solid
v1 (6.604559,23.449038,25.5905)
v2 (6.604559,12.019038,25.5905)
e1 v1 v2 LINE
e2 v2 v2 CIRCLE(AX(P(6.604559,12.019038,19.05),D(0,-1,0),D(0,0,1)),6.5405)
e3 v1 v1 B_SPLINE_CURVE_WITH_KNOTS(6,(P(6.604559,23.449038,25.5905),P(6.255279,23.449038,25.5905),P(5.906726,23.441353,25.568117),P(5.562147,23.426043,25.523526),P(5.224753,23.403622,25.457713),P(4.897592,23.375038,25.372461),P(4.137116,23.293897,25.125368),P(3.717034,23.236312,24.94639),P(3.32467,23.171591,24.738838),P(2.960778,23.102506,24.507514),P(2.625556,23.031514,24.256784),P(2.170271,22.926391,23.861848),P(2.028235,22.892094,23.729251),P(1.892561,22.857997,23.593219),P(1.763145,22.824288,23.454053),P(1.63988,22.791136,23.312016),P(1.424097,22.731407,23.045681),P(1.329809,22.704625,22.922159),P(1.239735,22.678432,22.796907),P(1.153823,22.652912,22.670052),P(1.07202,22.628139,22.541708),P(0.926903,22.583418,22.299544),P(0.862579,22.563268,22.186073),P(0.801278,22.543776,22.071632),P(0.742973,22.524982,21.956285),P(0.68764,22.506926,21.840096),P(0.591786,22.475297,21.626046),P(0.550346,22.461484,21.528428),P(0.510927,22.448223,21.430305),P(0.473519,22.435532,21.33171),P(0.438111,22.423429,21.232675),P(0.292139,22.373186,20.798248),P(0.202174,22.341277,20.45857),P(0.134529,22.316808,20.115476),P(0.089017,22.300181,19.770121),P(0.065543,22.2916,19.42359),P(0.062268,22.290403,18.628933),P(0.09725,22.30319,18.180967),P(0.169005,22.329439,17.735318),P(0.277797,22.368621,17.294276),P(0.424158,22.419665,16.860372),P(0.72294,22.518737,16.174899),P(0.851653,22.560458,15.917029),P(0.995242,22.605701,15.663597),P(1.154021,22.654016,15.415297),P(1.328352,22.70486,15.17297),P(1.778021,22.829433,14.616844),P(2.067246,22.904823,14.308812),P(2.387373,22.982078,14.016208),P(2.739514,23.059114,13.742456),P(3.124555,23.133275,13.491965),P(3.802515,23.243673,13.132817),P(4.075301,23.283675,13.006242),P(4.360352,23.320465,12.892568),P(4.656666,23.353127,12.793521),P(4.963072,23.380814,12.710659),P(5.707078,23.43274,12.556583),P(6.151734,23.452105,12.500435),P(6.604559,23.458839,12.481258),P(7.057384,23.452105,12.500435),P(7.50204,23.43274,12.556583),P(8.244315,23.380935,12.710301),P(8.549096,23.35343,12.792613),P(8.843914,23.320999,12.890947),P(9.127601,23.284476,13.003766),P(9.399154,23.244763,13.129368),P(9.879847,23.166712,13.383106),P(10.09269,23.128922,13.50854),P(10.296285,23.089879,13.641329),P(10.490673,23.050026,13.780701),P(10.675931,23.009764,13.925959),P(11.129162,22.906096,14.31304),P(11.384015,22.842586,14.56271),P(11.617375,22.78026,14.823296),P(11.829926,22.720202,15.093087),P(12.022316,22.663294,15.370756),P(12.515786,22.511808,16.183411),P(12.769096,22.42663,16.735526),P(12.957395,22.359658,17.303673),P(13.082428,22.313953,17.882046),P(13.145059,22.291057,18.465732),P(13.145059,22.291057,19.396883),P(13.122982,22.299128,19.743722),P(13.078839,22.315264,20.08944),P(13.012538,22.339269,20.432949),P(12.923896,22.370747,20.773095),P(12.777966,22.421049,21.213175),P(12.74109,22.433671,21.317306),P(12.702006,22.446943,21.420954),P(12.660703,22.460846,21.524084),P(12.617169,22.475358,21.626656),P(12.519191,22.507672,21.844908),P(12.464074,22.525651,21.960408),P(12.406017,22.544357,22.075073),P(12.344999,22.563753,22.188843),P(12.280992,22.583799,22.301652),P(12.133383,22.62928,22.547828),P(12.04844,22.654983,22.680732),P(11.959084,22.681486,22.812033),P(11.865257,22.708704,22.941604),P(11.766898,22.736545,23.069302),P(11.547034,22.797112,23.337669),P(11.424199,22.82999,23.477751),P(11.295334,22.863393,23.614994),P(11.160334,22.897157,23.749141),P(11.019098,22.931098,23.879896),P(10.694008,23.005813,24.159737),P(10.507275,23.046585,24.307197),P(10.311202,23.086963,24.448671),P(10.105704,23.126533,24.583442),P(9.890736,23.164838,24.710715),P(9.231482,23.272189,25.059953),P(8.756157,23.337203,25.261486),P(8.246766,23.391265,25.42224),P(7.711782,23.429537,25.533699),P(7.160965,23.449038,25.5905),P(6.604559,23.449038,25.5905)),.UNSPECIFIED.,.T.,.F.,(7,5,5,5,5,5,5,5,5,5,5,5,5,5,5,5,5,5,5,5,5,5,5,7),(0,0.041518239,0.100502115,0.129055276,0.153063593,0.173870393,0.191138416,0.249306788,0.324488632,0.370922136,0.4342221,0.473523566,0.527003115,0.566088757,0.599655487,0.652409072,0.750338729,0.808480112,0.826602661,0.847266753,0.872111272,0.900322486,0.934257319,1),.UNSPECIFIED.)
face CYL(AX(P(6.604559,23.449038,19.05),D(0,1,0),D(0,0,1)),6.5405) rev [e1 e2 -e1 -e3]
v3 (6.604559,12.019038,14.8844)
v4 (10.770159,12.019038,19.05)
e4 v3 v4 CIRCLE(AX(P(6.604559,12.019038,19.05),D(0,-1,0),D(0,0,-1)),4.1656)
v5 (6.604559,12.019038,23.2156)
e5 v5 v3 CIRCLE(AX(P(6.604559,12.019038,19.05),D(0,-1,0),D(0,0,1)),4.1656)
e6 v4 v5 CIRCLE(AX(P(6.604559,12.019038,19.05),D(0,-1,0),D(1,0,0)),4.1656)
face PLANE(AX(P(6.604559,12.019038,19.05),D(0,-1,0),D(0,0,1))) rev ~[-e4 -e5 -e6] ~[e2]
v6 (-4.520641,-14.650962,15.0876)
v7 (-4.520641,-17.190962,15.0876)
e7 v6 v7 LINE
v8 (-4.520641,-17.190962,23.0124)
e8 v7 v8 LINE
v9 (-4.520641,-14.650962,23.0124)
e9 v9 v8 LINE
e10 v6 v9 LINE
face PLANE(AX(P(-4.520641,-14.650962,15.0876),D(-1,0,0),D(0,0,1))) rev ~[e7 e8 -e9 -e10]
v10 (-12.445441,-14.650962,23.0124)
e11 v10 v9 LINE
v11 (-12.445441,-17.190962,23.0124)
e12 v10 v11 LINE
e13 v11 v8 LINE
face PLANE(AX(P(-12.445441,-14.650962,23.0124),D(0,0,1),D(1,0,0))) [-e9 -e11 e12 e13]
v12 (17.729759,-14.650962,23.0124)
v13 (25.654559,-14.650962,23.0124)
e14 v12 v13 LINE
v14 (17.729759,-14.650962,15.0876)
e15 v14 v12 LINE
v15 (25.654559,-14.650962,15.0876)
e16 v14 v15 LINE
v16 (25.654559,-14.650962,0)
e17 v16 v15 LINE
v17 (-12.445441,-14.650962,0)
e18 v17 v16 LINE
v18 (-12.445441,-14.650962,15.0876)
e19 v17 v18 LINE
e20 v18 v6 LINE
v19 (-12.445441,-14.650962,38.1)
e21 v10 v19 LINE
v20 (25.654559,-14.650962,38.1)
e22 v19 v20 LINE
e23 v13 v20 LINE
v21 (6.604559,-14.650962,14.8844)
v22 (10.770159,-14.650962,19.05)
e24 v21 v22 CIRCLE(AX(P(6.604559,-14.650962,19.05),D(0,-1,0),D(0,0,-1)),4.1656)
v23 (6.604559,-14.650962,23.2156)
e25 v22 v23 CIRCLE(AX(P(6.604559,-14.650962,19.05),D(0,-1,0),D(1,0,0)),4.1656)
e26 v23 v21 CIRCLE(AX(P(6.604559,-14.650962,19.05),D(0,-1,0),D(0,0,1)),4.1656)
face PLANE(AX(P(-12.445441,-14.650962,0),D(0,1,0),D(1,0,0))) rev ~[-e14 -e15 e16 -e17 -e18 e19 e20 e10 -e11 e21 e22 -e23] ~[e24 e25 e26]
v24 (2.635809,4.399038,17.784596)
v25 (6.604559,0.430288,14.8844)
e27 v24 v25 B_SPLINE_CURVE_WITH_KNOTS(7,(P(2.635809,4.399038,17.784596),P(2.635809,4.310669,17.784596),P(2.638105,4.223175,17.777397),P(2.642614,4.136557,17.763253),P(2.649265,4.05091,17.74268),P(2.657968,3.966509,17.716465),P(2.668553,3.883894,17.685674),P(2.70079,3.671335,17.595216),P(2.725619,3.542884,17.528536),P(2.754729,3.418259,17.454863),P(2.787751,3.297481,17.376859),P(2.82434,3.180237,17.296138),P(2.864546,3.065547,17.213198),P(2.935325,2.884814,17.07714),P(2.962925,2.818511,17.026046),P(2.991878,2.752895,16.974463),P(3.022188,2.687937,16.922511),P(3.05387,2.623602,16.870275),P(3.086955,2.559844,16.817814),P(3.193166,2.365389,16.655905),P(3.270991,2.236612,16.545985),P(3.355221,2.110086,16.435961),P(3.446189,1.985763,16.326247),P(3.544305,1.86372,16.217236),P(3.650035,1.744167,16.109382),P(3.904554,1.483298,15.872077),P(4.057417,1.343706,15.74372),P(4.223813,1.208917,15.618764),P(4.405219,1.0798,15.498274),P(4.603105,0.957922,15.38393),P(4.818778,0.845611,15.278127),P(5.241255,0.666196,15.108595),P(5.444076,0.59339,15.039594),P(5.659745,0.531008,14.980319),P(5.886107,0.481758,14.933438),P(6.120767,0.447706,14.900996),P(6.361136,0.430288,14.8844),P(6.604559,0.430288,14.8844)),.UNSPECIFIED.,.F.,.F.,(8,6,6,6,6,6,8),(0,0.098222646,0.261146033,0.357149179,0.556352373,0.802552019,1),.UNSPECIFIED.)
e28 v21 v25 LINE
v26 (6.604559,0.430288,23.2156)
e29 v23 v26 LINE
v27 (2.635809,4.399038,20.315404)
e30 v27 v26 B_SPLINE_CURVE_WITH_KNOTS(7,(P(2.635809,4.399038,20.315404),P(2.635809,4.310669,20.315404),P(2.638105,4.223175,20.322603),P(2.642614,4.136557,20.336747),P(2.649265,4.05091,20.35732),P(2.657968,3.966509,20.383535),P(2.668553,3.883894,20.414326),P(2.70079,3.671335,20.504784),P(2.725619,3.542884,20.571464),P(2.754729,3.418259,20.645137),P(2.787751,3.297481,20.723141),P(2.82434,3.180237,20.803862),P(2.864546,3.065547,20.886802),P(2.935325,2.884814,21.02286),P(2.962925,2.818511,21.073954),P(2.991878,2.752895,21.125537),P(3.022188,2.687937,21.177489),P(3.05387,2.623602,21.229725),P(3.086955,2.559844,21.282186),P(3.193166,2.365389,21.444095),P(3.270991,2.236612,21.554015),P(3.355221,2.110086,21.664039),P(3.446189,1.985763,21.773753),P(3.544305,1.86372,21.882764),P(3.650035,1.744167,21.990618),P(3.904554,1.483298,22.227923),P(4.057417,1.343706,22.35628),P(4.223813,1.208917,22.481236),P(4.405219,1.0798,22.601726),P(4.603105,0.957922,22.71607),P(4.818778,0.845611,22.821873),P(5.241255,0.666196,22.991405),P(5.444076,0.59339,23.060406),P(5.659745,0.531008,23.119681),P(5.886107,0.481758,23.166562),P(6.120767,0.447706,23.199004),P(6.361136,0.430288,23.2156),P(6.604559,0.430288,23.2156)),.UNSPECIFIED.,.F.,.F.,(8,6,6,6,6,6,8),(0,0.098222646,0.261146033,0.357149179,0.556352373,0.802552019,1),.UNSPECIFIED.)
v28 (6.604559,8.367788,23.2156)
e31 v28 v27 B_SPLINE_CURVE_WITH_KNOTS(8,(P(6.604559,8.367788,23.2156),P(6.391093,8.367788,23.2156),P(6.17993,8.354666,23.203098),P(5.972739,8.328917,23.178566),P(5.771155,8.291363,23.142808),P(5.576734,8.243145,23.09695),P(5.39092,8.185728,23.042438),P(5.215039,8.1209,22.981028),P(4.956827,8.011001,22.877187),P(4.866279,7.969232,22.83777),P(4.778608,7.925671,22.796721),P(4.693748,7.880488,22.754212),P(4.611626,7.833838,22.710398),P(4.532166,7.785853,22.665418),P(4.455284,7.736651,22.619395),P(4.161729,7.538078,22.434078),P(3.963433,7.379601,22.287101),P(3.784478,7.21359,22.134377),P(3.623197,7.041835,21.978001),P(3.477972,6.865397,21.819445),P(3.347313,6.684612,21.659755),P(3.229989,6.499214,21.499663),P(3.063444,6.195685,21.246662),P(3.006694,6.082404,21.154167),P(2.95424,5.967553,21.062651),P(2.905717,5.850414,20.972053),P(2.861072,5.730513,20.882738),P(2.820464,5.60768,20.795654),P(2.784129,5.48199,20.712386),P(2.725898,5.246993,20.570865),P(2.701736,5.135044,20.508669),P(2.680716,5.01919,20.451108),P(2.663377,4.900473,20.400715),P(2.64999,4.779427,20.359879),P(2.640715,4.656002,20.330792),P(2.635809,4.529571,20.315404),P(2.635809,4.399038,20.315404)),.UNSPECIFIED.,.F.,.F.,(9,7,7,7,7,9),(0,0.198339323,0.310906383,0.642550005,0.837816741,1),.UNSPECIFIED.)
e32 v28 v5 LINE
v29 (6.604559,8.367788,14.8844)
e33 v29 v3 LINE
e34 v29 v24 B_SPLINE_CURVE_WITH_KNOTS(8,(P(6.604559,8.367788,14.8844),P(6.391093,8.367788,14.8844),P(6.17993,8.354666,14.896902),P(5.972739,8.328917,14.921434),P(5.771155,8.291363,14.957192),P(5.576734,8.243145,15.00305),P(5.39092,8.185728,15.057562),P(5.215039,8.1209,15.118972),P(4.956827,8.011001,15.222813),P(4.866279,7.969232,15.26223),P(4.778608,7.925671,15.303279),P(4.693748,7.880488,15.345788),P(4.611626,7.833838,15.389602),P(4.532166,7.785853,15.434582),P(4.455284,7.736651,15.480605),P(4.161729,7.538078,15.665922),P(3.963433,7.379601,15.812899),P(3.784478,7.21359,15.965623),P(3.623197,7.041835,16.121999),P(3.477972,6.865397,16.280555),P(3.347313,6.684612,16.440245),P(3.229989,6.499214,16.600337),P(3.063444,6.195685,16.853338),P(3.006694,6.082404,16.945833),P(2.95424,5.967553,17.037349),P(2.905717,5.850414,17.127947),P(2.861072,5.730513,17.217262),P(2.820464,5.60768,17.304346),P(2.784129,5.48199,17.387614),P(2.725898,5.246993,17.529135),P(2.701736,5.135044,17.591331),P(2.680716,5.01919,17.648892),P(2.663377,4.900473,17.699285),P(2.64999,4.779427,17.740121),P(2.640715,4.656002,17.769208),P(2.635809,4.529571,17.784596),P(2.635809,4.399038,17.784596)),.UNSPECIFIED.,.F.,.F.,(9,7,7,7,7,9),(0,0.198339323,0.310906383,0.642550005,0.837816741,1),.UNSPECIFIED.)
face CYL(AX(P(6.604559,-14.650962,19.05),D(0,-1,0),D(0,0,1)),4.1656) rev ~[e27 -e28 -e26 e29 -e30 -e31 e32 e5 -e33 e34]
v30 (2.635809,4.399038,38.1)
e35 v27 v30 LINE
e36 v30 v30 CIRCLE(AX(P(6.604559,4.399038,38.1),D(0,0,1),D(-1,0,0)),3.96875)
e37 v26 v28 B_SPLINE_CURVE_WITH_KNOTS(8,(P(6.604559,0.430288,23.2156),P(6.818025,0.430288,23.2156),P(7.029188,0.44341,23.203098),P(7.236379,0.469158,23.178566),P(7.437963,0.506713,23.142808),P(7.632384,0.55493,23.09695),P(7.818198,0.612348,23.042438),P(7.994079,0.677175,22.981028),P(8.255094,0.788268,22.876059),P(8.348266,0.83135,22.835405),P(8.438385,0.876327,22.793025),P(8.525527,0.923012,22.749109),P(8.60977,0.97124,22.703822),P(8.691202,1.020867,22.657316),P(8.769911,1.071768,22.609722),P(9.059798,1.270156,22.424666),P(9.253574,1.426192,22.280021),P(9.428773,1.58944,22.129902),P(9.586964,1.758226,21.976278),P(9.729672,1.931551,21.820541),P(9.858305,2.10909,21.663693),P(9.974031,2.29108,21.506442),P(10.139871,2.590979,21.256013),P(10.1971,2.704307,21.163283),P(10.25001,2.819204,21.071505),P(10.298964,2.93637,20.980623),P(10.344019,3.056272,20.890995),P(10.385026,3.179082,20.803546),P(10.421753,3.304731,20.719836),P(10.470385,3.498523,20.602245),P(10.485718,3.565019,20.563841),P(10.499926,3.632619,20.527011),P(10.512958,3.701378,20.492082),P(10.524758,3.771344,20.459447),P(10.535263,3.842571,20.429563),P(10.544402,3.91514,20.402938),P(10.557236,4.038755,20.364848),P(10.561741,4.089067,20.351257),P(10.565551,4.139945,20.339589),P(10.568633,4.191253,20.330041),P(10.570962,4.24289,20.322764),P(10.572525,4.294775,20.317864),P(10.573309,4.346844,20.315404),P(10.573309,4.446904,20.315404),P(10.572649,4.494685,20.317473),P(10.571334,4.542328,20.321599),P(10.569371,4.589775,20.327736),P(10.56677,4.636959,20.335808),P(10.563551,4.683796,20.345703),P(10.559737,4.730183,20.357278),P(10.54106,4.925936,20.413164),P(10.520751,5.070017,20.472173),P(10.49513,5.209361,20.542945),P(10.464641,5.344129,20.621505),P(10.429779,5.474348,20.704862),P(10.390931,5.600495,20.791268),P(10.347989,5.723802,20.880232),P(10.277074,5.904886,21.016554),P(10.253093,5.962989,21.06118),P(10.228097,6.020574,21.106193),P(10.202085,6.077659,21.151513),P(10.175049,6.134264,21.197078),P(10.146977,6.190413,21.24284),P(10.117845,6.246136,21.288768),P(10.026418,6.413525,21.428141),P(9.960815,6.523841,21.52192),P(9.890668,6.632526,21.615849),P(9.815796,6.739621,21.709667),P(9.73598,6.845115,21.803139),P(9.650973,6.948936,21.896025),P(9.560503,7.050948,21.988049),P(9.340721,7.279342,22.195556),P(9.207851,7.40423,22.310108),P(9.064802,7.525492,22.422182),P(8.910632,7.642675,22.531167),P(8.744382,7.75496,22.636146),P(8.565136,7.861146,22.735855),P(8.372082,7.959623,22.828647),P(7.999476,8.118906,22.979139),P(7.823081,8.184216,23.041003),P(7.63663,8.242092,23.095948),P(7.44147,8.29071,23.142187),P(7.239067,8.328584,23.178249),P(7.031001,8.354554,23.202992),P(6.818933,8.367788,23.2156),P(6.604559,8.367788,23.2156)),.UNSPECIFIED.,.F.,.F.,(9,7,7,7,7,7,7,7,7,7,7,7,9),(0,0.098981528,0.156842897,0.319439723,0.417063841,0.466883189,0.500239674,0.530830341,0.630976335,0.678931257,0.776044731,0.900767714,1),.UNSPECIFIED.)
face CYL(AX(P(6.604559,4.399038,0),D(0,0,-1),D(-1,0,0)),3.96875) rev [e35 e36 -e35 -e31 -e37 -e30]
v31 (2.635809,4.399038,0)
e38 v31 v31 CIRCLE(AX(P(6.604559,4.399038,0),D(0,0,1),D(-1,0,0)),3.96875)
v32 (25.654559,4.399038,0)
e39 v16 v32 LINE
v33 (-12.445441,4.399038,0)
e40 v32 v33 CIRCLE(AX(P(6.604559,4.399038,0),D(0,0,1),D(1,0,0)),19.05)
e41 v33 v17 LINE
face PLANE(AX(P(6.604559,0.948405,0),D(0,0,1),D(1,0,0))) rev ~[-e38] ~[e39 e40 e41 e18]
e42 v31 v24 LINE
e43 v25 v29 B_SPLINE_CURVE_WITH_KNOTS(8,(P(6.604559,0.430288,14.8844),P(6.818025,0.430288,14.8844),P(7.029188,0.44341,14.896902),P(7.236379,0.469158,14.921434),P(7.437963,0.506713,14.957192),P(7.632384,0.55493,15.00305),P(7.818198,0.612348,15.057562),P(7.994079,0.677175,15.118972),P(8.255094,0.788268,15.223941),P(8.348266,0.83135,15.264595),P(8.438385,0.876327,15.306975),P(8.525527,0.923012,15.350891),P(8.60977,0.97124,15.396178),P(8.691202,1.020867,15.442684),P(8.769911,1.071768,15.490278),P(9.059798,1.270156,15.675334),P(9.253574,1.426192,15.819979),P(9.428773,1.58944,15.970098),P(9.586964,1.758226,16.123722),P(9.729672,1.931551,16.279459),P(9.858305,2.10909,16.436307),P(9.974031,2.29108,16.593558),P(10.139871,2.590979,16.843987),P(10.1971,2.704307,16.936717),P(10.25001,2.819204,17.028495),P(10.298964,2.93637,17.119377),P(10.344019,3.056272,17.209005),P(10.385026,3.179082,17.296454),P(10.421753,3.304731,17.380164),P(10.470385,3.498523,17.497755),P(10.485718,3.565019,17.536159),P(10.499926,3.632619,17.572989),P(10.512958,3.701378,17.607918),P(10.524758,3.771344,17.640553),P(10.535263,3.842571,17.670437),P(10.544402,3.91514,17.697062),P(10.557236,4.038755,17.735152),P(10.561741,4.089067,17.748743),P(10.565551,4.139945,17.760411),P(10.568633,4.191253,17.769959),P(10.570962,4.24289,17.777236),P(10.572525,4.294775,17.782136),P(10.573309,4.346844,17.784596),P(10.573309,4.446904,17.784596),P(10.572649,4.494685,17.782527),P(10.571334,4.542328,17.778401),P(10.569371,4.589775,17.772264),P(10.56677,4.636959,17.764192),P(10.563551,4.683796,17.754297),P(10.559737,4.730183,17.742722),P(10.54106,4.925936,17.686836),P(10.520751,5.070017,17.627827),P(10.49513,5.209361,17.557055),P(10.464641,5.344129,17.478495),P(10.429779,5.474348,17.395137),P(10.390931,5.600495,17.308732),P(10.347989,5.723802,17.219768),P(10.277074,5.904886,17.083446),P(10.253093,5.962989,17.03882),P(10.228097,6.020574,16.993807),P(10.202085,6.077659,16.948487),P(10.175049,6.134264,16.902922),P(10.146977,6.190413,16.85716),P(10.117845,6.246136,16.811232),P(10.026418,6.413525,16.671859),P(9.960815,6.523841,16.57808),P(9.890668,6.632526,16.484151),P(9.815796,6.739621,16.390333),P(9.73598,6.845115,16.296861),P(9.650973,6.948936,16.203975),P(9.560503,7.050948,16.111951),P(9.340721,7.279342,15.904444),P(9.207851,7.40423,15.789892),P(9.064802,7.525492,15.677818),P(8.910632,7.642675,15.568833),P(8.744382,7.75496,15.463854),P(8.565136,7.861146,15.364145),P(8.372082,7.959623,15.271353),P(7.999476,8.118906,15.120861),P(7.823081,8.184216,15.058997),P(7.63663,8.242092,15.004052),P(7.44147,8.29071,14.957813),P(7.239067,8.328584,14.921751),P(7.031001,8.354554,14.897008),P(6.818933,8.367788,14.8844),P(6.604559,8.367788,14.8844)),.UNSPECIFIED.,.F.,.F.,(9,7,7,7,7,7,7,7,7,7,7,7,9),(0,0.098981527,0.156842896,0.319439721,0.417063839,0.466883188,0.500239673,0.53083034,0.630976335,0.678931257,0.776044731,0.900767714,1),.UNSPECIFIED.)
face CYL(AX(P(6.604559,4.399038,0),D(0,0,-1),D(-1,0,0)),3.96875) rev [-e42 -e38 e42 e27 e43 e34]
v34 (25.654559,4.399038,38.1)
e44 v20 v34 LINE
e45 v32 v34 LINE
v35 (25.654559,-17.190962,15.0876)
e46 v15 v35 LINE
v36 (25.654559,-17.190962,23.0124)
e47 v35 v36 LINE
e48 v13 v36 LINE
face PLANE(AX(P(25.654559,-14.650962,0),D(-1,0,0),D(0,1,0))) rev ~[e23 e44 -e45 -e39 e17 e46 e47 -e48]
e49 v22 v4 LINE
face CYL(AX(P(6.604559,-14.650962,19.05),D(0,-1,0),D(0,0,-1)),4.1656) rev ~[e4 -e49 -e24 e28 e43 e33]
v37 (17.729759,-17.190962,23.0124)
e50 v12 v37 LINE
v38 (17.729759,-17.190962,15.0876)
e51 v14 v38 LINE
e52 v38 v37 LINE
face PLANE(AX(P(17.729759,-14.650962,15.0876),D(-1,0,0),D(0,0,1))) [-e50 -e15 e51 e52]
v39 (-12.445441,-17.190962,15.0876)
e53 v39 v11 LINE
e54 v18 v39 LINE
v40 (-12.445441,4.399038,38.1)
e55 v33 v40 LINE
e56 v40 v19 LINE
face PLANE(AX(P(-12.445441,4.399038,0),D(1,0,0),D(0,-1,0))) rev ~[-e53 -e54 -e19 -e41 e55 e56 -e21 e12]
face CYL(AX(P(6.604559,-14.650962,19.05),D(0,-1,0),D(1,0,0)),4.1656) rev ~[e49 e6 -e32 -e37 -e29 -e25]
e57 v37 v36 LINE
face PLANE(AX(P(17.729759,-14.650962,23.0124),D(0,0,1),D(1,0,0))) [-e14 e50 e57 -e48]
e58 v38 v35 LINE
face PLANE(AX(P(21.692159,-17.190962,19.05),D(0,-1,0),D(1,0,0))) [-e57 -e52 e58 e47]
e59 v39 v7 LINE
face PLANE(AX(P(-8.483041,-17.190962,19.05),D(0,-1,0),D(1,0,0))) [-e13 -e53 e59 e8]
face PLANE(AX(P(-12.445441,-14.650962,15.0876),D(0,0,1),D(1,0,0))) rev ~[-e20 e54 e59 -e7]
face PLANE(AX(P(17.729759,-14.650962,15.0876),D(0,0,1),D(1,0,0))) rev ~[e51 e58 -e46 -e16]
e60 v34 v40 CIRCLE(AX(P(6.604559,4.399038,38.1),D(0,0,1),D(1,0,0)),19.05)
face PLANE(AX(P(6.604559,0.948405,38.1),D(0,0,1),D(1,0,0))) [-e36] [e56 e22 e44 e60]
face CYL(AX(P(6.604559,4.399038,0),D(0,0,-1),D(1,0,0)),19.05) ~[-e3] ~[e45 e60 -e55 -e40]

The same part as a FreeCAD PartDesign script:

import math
import FreeCAD as App
import Part
import Sketcher

V = App.Vector
Q = App.Units.Quantity


def add_polygon(sketch, points):
    """Adds a closed chain of lines whose ends are joined by coincident constraints."""
    first, n = sketch.GeometryCount, len(points)
    for a, b in zip(points, points[1:] + points[:1]):
        sketch.addGeometry(Part.LineSegment(App.Vector(*a, 0), App.Vector(*b, 0)), False)
    for i in range(n):
        sketch.addConstraint(Sketcher.Constraint("Coincident", first + i, 2, first + (i + 1) % n, 1))

doc = App.newDocument("Part")
body = doc.addObject("PartDesign::Body", "Body")

sketch1 = body.newObject("Sketcher::SketchObject", "Sketch")
sketch1.AttachmentSupport = (doc.getObject("XY_Plane"), [""])
sketch1.MapMode = "FlatFace"
sketch1.addGeometry([
    Part.LineSegment(V(-12.445441, 4.399038, 0), V(-12.445441, -14.650962, 0)),
    Part.LineSegment(V(-12.445441, -14.650962, 0), V(25.654559, -14.650962, 0)),
    Part.LineSegment(V(25.654559, -14.650962, 0), V(25.654559, 4.399038, 0)),
    Part.ArcOfCircle(Part.Circle(V(6.604559, 4.399038, 0), V(0, 0, 1), 19.05), math.radians(0), math.radians(180)),
    Part.Circle(V(6.604559, 4.399038, 0), V(0, 0, 1), 3.96875),
], False)
sketch1.addConstraint([
    Sketcher.Constraint("Coincident", 0, 2, 1, 1),
    Sketcher.Constraint("Coincident", 1, 2, 2, 1),
    Sketcher.Constraint("Tangent", 2, 2, 3, 1),
    Sketcher.Constraint("Tangent", 3, 2, 0, 1),
    Sketcher.Constraint("Vertical", 0),
    Sketcher.Constraint("Horizontal", 1),
    Sketcher.Constraint("Vertical", 2),
    Sketcher.Constraint("Coincident", 4, 3, 3, 3),
    Sketcher.Constraint("Radius", 3, Q("0.75 in")),
    Sketcher.Constraint("Diameter", 4, Q("0.3125 in")),
    Sketcher.Constraint("DistanceY", 0, 2, 0, 1, Q("0.75 in")),
    Sketcher.Constraint("DistanceX", -1, 1, 3, 3, 6.604559),
    Sketcher.Constraint("DistanceY", -1, 1, 3, 3, 4.399038),
])
pad1 = body.newObject("PartDesign::Pad", "Pad")
pad1.Profile = sketch1
pad1.Length = Q("1.5 in")

sketch2 = body.newObject("Sketcher::SketchObject", "Sketch001")
sketch2.AttachmentSupport = (doc.getObject("XZ_Plane"), [""])
sketch2.MapMode = "FlatFace"
sketch2.AttachmentOffset = App.Placement(V(0, 0, 14.650962), App.Rotation())
sketch2.addGeometry([
    Part.ArcOfCircle(Part.Circle(V(6.604559, 19.05, 0), V(0, 0, 1), 4.1656), math.radians(0), math.radians(90)),
    Part.ArcOfCircle(Part.Circle(V(6.604559, 19.05, 0), V(0, 0, 1), 4.1656), math.radians(90), math.radians(270)),
    Part.ArcOfCircle(Part.Circle(V(6.604559, 19.05, 0), V(0, 0, 1), 4.1656), math.radians(-90), math.radians(0)),
], False)
sketch2.addConstraint([
    Sketcher.Constraint("Tangent", 0, 2, 1, 1),
    Sketcher.Constraint("Tangent", 1, 2, 2, 1),
    Sketcher.Constraint("Tangent", 2, 2, 0, 1),
    Sketcher.Constraint("Horizontal", 1, 3, 2, 2),
    Sketcher.Constraint("Vertical", 2, 3, 0, 2),
    Sketcher.Constraint("Vertical", 0, 2, 1, 2),
    Sketcher.Constraint("Radius", 0, Q("0.164 in")),
    Sketcher.Constraint("DistanceY", -1, 1, 0, 3, Q("0.75 in")),
    Sketcher.Constraint("DistanceX", -1, 1, 0, 3, 6.604559),
])
pocket1 = body.newObject("PartDesign::Pocket", "Pocket")
pocket1.Profile = sketch2
pocket1.Type = "ThroughAll"

sketch3 = body.newObject("Sketcher::SketchObject", "Sketch002")
sketch3.AttachmentSupport = (doc.getObject("XZ_Plane"), [""])
sketch3.MapMode = "FlatFace"
sketch3.AttachmentOffset = App.Placement(V(0, 0, -23.449038), App.Rotation())
sketch3.addGeometry(Part.Circle(V(6.604559, 19.05, 0), V(0, 0, 1), 6.5405), False)
sketch3.addConstraint([
    Sketcher.Constraint("Diameter", 0, Q("0.515 in")),
    Sketcher.Constraint("DistanceY", -1, 1, 0, 3, Q("0.75 in")),
    Sketcher.Constraint("DistanceX", -1, 1, 0, 3, 6.604559),
])
pocket2 = body.newObject("PartDesign::Pocket", "Pocket001")
pocket2.Profile = sketch3
pocket2.Length = Q("0.45 in")
pocket2.Reversed = True

sketch4 = body.newObject("Sketcher::SketchObject", "Sketch003")
sketch4.AttachmentSupport = (doc.getObject("XZ_Plane"), [""])
sketch4.MapMode = "FlatFace"
sketch4.AttachmentOffset = App.Placement(V(0, 0, 14.650962), App.Rotation())
add_polygon(sketch4, [(-12.445441, 23.0124), (-12.445441, 15.0876), (-4.520641, 15.0876), (-4.520641, 23.0124)])
add_polygon(sketch4, [(17.729759, 23.0124), (17.729759, 15.0876), (25.654559, 15.0876), (25.654559, 23.0124)])
sketch4.addConstraint([
    Sketcher.Constraint("Vertical", 0),
    Sketcher.Constraint("Horizontal", 1),
    Sketcher.Constraint("Vertical", 2),
    Sketcher.Constraint("Horizontal", 3),
    Sketcher.Constraint("Vertical", 4),
    Sketcher.Constraint("Horizontal", 5),
    Sketcher.Constraint("Vertical", 6),
    Sketcher.Constraint("Horizontal", 7),
    Sketcher.Constraint("Horizontal", 1, 2, 4, 2),
    Sketcher.Constraint("Horizontal", 3, 2, 6, 2),
    Sketcher.Constraint("Equal", 3, 5),
    Sketcher.Constraint("Equal", 7, 0),
    Sketcher.Constraint("DistanceX", 0, 2, 5, 2, Q("1.5 in")),
    Sketcher.Constraint("DistanceX", 1, 1, 1, 2, Q("0.312 in")),
    Sketcher.Constraint("DistanceY", -1, 1, 0, 2, Q("0.594 in")),
    Sketcher.Constraint("DistanceX", 0, 2, -1, 1, 12.445441),
])
pad2 = body.newObject("PartDesign::Pad", "Pad001")
pad2.Profile = sketch4
pad2.Length = Q("0.1 in")

doc.recompute()
